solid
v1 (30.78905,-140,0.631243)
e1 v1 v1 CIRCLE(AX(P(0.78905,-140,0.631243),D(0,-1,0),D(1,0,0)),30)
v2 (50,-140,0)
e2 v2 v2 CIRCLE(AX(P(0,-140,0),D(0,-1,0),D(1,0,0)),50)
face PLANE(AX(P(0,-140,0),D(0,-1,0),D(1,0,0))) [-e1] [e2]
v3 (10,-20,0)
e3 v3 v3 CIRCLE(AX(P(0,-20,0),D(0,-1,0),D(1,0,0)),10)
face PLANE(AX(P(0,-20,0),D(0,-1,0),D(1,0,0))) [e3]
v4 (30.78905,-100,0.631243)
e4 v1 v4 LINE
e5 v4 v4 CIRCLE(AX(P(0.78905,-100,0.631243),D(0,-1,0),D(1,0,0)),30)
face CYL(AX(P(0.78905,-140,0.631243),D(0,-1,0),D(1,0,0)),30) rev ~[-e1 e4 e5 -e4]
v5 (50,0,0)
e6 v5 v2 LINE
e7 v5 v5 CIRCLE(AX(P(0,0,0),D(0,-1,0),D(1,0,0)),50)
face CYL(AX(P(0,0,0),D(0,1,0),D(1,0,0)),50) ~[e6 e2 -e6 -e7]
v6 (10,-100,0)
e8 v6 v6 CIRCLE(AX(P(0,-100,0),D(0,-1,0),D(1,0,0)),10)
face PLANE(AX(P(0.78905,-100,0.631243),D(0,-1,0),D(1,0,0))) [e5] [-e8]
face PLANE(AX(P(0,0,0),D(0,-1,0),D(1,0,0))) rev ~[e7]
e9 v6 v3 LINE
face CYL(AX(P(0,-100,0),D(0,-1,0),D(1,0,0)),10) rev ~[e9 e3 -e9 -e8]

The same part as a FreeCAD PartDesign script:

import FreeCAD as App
import Part
import Sketcher
Q = App.Units.Quantity

doc = App.newDocument("Part")
body = doc.addObject("PartDesign::Body", "Body")

sketch1 = body.newObject("Sketcher::SketchObject", "Sketch")
sketch1.AttachmentSupport = (doc.getObject("XZ_Plane"), [""])
sketch1.MapMode = "FlatFace"
sketch1.addGeometry(Part.Circle(App.Vector(0, 0, 0), App.Vector(0, 0, 1), 50), False)
sketch1.addConstraint([
    Sketcher.Constraint("Coincident", 0, 3, -1, 1),
    Sketcher.Constraint("Diameter", 0, Q("100 mm")),
])
pad1 = body.newObject("PartDesign::Pad", "Pad")
pad1.Profile = sketch1
pad1.Length = 140

sketch2 = body.newObject("Sketcher::SketchObject", "Sketch001")
sketch2.AttachmentSupport = (doc.getObject("XZ_Plane"), [""])
sketch2.MapMode = "FlatFace"
sketch2.AttachmentOffset = App.Placement(App.Vector(0, 0, 140), App.Rotation())
sketch2.addGeometry(Part.Circle(App.Vector(0.78905, 0.631243, 0), App.Vector(0, 0, 1), 30), False)
sketch2.addConstraint([
    Sketcher.Constraint("Diameter", 0, Q("60 mm")),
    Sketcher.Constraint("DistanceX", -1, 1, 0, 3, Q("0.78905 mm")),
    Sketcher.Constraint("DistanceY", -1, 1, 0, 3, Q("0.631243 mm")),
])
pocket1 = body.newObject("PartDesign::Pocket", "Pocket")
pocket1.Profile = sketch2
pocket1.Length = 40

sketch3 = body.newObject("Sketcher::SketchObject", "Sketch002")
sketch3.AttachmentSupport = (doc.getObject("XZ_Plane"), [""])
sketch3.MapMode = "FlatFace"
sketch3.AttachmentOffset = App.Placement(App.Vector(0, 0, 100), App.Rotation())
sketch3.addGeometry(Part.Circle(App.Vector(0, 0, 0), App.Vector(0, 0, 1), 10), False)
sketch3.addConstraint([
    Sketcher.Constraint("Coincident", 0, 3, -1, 1),
    Sketcher.Constraint("Diameter", 0, Q("20 mm")),
])
pocket2 = body.newObject("PartDesign::Pocket", "Pocket001")
pocket2.Profile = sketch3
pocket2.Length = 80

doc.recompute()
